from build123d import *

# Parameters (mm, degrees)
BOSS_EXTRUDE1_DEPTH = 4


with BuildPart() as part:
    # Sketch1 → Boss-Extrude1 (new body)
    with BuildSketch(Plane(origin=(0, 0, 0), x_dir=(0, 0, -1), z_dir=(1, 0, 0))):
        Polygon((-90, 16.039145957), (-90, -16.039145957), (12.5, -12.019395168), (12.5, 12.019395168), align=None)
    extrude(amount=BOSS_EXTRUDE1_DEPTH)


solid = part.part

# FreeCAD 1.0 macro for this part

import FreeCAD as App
import Part
import Sketcher

doc = App.newDocument("Part")
body = doc.addObject("PartDesign::Body", "Body")

# Sketch on YZ plane
sketch1 = body.newObject("Sketcher::SketchObject", "Sketch")
sketch1.AttachmentSupport = (doc.getObject("YZ_Plane"), [""])
sketch1.MapMode = "FlatFace"
sketch1.addGeometry([
    Part.LineSegment(App.Vector(16.039146, 90, 0), App.Vector(-16.039146, 90, 0)),
    Part.LineSegment(App.Vector(-16.039146, 90, 0), App.Vector(-12.019395, -12.5, 0)),
    Part.LineSegment(App.Vector(-12.019395, -12.5, 0), App.Vector(12.019395, -12.5, 0)),
    Part.LineSegment(App.Vector(12.019395, -12.5, 0), App.Vector(16.039146, 90, 0)),
], False)
sketch1.addConstraint([
    Sketcher.Constraint("Coincident", 0, 2, 1, 1),
    Sketcher.Constraint("Coincident", 1, 2, 2, 1),
    Sketcher.Constraint("Coincident", 2, 2, 3, 1),
    Sketcher.Constraint("Coincident", 3, 2, 0, 1),
    Sketcher.Constraint("Horizontal", 0),
    Sketcher.Constraint("Horizontal", 2),
    Sketcher.Constraint("Equal", 1, 3),
    Sketcher.Constraint("DistanceY", -1, 1, 0, 2, 90.0),
    Sketcher.Constraint("DistanceY", 1, 2, -1, 1, 12.5),
    Sketcher.Constraint("DistanceX", 0, 2, 0, 1, 32.078292),
    Sketcher.Constraint("DistanceX", 2, 1, 2, 2, 24.03879),
    Sketcher.Constraint("DistanceX", 0, 2, -1, 1, 16.039146),
])
pad1 = body.newObject("PartDesign::Pad", "Pad")
pad1.Profile = sketch1
pad1.Length = 4

doc.recompute()
